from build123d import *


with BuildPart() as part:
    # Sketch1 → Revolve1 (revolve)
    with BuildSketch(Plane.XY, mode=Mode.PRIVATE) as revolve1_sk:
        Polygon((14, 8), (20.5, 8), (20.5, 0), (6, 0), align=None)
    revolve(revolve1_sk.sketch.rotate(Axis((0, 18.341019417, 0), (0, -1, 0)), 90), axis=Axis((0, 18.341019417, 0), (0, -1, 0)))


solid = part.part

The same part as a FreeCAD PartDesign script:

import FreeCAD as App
import Part
import Sketcher
Q = App.Units.Quantity


def add_polygon(sketch, points):
    """Adds a closed chain of lines whose ends are joined by coincident constraints."""
    first, n = sketch.GeometryCount, len(points)
    for a, b in zip(points, points[1:] + points[:1]):
        sketch.addGeometry(Part.LineSegment(App.Vector(*a, 0), App.Vector(*b, 0)), False)
    for i in range(n):
        sketch.addConstraint(Sketcher.Constraint("Coincident", first + i, 2, first + (i + 1) % n, 1))

doc = App.newDocument("Part")
params = doc.addObject("Spreadsheet::Sheet", "Params")
for row, (alias, value) in enumerate([
    ("sketch1_height", "8 mm"),
    ("sketch1_width", "6.5 mm"),
    ("revolution_angle", "360 deg"),
], start=1):
    params.set(f"A{row}", alias)
    params.set(f"B{row}", "=" + value)
    params.setAlias(f"B{row}", alias)

body = doc.addObject("PartDesign::Body", "Body")

sketch1 = doc.addObject("Sketcher::SketchObject", "Sketch")
body.addObject(sketch1)
sketch1.AttachmentSupport = (doc.XY_Plane, [""])
sketch1.MapMode = "FlatFace"
add_polygon(sketch1, [(20, 8), (14, 8), (6, 0), (20, 0)])
sketch1.addConstraint([
    Sketcher.Constraint("Horizontal", 0),
    Sketcher.Constraint("Horizontal", 2),
    Sketcher.Constraint("Vertical", 3),
    Sketcher.Constraint("PointOnObject", 1, 2, -1),
    Sketcher.Constraint("DistanceY", 3, 1, 3, 2, 8.0),
    Sketcher.Constraint("Angle", 1, Q("-135 deg")),
    Sketcher.Constraint("DistanceX", 0, 2, 0, 1, 6.5),
    Sketcher.Constraint("DistanceX", -1, 1, 0, 2, 14.0),
])
sketch1.setExpression("Constraints[8]", "Params.sketch1_height")
sketch1.setExpression("Constraints[10]", "Params.sketch1_width")
revolution = doc.addObject("PartDesign::Revolution", "Revolution")
body.addObject(revolution)
revolution.Profile = sketch1
revolution.ReferenceAxis = (sketch1, ["V_Axis"])
revolution.setExpression("Angle", "Params.revolution_angle")

doc.recompute()
